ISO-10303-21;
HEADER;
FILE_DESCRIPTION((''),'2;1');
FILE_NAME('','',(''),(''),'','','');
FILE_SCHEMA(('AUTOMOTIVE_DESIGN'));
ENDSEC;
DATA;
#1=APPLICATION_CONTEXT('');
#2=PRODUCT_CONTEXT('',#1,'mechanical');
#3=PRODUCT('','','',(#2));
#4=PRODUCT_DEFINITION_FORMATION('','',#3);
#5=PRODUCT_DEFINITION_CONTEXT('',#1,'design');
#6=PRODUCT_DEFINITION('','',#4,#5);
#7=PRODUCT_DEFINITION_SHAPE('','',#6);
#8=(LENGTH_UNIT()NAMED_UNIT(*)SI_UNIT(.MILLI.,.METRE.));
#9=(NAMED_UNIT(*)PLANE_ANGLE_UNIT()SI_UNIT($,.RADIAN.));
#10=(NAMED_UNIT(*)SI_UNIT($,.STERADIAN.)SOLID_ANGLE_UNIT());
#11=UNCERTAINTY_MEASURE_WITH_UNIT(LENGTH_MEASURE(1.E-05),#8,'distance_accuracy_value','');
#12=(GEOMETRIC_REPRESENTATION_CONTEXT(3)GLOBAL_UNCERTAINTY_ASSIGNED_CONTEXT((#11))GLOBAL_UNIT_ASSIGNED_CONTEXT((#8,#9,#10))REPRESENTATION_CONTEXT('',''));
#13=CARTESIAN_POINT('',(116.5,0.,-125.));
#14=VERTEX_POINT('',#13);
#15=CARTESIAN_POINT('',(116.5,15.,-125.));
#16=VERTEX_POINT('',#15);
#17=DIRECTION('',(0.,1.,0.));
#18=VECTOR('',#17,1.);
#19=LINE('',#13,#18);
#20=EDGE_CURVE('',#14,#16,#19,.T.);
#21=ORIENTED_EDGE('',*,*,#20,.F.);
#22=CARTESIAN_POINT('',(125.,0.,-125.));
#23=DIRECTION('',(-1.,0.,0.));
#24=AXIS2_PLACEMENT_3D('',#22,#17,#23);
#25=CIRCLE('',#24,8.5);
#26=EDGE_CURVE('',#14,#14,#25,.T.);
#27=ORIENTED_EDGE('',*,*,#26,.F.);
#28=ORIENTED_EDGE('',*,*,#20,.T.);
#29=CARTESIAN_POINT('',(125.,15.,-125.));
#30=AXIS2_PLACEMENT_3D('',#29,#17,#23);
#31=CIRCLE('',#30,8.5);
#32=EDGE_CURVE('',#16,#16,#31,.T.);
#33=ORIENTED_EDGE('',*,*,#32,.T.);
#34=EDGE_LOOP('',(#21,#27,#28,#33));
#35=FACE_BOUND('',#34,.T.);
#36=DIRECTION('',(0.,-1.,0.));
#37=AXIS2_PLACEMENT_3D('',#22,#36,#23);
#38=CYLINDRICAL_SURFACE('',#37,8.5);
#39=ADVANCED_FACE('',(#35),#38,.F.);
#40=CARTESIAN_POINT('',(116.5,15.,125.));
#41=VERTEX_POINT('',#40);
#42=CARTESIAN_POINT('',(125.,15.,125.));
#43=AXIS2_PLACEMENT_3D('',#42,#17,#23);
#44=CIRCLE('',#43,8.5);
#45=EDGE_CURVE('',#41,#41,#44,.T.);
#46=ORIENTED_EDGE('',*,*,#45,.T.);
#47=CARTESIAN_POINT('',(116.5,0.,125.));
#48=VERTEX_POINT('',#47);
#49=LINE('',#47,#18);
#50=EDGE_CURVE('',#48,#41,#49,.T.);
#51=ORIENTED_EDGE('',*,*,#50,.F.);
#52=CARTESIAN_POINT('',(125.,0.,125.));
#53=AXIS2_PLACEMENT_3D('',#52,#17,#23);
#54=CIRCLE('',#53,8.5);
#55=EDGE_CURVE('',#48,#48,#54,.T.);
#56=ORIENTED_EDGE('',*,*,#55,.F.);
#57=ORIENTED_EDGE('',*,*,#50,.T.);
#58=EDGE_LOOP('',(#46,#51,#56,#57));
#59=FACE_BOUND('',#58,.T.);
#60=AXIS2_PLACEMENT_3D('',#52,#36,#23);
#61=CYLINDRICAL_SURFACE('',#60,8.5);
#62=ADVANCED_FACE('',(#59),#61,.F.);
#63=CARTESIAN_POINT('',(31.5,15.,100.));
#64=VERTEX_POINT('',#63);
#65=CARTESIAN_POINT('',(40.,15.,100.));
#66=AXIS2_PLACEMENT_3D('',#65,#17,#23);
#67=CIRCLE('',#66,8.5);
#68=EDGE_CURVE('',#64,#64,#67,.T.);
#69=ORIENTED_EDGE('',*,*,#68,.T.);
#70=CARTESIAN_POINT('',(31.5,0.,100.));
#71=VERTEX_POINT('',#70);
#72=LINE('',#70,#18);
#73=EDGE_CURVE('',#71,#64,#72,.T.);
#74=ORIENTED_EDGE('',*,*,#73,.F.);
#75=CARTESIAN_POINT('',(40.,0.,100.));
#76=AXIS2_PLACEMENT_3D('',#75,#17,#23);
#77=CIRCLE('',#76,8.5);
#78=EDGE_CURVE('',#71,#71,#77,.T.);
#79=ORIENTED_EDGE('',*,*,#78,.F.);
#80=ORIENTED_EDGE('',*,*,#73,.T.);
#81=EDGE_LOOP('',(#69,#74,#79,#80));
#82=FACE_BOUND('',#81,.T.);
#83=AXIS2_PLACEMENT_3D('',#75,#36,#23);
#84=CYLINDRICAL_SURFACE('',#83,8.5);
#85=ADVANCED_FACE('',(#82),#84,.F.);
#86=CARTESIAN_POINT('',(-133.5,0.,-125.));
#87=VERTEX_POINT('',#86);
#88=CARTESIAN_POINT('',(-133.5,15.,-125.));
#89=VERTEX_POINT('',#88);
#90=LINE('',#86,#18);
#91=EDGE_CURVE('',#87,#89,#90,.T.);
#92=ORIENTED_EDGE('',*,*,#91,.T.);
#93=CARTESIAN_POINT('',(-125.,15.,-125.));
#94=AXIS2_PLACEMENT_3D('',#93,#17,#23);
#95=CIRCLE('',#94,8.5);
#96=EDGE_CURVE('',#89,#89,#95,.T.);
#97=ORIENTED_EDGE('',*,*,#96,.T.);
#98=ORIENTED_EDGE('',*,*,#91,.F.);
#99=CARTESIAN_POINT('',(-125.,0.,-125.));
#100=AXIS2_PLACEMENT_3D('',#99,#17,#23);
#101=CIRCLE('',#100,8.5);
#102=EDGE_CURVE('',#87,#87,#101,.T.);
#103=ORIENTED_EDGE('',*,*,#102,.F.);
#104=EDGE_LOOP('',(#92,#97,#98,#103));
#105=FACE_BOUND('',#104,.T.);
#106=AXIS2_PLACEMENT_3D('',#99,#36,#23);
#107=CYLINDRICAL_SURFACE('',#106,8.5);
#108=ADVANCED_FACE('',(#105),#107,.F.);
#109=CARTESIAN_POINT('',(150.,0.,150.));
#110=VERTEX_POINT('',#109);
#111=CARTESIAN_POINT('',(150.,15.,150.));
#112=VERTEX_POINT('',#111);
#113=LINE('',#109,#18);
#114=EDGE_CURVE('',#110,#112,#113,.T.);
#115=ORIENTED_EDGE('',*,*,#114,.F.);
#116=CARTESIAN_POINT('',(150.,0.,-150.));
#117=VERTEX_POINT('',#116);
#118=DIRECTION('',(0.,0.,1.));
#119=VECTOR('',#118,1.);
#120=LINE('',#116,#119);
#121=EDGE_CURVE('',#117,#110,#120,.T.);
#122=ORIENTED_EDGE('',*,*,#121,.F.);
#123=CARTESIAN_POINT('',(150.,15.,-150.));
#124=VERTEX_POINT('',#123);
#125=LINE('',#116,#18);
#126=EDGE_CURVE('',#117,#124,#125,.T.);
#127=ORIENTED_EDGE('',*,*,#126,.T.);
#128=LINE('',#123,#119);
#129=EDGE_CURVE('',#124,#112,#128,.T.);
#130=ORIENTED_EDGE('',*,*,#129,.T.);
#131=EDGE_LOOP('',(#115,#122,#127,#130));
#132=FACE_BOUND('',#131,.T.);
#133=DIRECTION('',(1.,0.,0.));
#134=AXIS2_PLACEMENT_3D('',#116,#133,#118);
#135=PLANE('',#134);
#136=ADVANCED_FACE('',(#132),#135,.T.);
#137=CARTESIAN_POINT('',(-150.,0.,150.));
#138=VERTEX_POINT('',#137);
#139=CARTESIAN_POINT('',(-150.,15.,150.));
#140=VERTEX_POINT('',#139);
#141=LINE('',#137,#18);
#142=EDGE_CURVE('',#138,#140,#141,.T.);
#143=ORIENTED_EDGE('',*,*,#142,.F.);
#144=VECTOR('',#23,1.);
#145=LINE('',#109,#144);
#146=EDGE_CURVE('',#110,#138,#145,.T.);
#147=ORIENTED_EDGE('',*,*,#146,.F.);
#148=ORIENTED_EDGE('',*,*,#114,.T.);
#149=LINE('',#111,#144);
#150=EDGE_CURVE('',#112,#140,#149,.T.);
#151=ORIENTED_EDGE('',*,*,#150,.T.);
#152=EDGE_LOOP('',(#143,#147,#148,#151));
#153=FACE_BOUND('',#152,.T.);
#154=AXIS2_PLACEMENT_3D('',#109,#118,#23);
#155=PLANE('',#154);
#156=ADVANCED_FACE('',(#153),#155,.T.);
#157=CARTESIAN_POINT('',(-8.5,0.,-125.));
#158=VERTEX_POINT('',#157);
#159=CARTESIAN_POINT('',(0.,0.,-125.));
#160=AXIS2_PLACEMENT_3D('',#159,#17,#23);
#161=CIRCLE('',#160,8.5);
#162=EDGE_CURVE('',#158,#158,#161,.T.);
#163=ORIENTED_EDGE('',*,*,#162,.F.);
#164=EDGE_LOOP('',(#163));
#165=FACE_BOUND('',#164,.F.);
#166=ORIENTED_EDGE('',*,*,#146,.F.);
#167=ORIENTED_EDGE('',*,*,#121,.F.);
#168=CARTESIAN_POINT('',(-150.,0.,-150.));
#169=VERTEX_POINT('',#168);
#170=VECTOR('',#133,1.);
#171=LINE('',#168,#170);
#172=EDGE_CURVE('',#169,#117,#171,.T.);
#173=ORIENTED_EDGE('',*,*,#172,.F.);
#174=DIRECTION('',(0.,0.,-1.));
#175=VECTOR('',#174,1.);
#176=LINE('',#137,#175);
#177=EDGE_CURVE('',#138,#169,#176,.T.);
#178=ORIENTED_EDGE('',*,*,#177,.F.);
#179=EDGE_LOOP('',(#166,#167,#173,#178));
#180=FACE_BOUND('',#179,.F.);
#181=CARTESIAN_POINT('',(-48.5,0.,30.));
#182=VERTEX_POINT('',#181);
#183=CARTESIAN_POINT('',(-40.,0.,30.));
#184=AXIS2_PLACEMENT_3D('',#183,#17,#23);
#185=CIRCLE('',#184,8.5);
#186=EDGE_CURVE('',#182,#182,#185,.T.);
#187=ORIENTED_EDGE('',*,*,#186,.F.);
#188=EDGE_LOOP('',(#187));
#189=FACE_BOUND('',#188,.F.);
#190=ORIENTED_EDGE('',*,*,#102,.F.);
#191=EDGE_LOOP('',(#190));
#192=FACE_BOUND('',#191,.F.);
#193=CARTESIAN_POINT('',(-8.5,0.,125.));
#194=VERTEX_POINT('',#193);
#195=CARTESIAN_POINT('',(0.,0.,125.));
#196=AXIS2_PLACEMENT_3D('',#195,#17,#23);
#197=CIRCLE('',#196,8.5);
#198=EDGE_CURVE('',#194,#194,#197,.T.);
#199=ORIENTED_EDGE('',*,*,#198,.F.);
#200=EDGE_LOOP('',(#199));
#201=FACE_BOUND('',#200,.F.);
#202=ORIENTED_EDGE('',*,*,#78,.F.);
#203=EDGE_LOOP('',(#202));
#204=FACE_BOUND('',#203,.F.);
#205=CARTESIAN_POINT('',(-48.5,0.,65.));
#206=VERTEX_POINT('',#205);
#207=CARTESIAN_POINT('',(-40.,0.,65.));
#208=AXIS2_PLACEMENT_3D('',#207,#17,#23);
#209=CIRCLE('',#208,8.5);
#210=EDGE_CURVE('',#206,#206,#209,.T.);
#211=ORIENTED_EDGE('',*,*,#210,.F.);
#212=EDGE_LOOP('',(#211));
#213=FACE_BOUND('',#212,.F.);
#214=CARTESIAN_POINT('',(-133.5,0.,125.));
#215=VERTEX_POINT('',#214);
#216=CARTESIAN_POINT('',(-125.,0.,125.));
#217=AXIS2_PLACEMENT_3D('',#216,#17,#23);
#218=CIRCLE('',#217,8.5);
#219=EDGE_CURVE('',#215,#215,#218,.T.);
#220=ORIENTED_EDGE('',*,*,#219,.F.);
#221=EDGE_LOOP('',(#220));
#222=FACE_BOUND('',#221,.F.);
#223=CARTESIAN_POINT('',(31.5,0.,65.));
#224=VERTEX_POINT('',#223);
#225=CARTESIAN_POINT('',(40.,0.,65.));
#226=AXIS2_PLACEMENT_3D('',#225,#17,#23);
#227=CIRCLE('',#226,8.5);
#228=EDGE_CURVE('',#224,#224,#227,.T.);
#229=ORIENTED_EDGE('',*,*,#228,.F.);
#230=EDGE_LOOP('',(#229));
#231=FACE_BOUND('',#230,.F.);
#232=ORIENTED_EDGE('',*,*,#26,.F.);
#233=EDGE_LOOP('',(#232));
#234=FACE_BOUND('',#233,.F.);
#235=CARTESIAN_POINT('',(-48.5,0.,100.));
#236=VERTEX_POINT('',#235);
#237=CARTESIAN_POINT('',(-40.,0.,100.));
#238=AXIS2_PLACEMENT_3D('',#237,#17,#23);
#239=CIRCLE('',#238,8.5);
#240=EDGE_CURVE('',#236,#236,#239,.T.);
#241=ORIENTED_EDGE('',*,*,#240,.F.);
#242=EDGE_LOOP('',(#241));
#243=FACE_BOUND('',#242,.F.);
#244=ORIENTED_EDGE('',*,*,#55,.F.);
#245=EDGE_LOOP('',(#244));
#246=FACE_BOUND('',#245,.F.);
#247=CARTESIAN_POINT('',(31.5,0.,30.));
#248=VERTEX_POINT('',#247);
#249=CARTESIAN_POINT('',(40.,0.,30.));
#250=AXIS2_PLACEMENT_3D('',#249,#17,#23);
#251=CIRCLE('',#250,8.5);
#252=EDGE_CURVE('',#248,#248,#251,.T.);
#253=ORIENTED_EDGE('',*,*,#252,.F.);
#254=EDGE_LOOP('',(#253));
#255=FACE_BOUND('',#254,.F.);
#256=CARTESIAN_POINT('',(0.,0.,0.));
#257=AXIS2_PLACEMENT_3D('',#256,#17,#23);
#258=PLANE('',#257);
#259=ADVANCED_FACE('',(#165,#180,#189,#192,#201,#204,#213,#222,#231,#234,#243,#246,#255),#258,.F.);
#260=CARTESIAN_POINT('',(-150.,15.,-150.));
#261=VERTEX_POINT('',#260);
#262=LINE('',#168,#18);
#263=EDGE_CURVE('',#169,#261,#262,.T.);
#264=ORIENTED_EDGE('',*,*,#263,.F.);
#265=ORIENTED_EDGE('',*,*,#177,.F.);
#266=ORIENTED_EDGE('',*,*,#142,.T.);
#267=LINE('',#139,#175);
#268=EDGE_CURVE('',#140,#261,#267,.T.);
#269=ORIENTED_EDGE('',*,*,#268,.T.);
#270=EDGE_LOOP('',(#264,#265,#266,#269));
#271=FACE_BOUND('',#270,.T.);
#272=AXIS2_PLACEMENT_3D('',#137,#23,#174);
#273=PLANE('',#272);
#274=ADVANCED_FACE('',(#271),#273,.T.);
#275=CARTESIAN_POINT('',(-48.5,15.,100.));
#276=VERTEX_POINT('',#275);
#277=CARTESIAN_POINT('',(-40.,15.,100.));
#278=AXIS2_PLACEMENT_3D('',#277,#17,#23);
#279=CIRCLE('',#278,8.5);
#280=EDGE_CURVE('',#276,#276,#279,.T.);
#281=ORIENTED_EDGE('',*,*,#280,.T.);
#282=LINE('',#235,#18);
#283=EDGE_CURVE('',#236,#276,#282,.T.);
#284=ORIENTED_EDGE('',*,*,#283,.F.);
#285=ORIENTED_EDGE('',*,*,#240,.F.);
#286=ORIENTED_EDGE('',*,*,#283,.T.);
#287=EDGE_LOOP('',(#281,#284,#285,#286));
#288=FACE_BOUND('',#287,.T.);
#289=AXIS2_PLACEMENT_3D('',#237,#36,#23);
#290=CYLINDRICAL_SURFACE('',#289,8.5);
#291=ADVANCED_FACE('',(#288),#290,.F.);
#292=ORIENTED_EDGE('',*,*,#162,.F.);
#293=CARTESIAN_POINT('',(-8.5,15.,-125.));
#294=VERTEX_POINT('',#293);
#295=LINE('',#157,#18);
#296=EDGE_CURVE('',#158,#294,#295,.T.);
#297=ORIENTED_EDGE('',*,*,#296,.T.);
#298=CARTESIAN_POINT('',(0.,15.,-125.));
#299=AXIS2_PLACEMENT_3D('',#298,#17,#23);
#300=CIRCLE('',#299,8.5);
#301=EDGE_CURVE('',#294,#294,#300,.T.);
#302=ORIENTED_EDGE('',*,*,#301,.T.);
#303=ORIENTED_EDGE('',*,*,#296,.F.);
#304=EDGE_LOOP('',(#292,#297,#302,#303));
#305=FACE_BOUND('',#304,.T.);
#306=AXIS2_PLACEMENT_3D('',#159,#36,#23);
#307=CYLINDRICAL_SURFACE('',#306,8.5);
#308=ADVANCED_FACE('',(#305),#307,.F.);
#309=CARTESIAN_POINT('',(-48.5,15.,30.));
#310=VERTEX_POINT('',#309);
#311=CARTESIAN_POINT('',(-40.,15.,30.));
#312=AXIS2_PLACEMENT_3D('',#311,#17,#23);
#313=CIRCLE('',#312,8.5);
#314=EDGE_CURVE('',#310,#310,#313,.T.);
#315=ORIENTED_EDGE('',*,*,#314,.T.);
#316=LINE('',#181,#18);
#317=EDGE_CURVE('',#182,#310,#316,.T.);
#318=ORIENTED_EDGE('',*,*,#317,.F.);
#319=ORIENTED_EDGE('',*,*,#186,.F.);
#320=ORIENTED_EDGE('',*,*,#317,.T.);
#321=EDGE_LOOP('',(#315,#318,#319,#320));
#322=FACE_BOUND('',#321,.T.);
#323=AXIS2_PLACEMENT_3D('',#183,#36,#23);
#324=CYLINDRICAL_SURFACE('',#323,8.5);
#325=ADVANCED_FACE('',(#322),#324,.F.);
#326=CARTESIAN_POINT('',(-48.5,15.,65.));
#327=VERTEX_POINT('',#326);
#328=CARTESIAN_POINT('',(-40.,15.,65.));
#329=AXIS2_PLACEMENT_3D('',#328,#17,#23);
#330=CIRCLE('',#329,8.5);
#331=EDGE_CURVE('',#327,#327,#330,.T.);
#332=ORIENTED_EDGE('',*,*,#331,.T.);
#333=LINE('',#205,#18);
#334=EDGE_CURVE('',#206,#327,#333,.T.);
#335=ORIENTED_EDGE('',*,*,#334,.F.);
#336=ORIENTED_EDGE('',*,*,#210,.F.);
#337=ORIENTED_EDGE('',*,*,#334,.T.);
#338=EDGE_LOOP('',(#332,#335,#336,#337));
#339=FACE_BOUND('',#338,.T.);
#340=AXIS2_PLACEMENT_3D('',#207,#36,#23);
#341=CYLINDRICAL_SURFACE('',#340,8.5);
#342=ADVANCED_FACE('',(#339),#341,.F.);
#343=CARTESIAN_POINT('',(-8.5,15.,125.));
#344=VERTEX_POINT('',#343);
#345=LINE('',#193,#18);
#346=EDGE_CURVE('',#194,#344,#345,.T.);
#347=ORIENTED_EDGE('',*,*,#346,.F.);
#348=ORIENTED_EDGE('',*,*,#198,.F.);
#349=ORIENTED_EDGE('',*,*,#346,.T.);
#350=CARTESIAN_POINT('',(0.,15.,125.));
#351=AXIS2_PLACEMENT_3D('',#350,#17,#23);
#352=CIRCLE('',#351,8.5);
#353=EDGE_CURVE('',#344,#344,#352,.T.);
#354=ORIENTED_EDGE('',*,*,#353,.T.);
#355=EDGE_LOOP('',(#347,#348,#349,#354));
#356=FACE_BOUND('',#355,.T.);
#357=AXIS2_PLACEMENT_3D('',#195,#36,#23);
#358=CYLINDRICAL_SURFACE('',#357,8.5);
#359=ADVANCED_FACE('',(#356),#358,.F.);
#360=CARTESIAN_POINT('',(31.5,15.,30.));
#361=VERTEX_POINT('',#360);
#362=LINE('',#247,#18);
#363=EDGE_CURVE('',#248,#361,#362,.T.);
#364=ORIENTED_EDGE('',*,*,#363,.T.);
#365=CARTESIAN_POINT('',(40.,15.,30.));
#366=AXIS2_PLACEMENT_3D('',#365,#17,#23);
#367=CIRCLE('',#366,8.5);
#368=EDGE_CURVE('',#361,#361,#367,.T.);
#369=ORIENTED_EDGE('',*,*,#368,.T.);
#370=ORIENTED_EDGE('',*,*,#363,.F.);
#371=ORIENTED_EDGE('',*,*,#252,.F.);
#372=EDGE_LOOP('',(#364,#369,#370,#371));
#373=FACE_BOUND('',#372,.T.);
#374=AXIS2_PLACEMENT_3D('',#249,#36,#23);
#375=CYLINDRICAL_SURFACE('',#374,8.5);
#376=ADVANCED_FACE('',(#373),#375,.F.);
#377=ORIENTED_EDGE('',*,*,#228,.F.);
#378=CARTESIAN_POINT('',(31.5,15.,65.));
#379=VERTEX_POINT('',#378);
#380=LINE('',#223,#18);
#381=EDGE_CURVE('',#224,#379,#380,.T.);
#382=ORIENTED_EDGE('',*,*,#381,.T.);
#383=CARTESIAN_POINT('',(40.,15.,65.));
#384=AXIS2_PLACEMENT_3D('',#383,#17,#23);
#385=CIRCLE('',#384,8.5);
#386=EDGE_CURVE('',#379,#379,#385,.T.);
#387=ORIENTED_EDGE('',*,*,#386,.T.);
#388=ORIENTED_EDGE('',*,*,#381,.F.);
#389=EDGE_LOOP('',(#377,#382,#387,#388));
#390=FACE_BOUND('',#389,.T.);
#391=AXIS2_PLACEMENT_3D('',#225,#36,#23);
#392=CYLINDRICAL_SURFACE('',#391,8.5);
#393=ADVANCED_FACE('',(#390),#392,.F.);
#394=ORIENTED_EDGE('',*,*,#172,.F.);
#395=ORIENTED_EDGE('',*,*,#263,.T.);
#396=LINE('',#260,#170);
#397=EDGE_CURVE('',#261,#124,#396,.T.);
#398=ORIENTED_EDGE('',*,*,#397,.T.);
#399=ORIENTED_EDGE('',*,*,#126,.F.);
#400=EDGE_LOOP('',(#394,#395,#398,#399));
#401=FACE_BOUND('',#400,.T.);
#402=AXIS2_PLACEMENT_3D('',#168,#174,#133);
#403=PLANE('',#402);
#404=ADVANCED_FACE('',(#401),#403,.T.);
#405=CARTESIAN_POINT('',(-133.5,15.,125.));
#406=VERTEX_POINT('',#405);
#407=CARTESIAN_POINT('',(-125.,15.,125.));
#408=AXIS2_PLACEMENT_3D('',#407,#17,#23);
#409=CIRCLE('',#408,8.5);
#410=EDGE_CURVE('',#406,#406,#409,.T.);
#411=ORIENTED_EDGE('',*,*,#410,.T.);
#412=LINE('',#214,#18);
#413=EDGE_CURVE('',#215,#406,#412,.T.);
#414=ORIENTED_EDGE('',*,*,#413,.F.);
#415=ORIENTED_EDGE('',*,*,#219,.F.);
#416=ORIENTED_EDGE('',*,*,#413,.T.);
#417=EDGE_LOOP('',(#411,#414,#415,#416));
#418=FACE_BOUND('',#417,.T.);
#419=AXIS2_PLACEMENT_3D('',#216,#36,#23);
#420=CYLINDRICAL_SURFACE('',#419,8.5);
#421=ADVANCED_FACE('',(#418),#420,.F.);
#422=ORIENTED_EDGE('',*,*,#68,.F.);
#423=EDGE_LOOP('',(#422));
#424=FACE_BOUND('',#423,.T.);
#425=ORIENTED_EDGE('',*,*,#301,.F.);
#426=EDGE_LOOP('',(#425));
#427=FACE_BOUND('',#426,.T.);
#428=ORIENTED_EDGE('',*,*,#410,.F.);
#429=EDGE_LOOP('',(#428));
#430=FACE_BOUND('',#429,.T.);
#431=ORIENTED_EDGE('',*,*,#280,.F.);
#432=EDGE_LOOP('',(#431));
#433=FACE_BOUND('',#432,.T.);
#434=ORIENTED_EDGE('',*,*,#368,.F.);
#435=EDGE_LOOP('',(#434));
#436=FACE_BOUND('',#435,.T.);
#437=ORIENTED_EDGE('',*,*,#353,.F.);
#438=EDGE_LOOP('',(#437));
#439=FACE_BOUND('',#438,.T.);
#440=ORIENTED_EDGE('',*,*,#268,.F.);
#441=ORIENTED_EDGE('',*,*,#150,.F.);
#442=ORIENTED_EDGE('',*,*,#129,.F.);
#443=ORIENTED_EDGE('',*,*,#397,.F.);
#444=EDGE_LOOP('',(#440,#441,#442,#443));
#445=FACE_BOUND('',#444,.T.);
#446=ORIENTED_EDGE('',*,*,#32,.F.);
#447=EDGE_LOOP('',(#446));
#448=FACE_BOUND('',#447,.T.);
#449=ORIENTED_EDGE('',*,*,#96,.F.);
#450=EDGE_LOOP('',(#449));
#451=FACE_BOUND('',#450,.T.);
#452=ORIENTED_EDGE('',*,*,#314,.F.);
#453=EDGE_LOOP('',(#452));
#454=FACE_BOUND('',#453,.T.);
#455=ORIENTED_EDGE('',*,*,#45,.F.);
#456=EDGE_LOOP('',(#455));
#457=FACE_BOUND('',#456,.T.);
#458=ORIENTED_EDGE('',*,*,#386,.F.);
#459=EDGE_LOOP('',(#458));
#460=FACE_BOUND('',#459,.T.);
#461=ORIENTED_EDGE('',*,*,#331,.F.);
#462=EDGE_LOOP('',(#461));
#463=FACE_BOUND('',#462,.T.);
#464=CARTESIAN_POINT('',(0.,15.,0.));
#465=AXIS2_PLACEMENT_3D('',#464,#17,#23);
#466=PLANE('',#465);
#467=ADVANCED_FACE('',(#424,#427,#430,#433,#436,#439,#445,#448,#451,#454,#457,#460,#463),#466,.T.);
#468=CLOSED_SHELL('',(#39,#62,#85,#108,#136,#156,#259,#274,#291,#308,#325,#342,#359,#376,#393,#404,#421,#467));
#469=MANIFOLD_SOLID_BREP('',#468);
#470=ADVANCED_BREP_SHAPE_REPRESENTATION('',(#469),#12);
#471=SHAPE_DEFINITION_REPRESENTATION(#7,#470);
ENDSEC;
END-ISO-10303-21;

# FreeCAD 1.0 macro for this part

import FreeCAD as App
import Part
import Sketcher

doc = App.newDocument("Part")
body = doc.addObject("PartDesign::Body", "Body")

# Sketch on XZ plane
sketch1 = doc.addObject("Sketcher::SketchObject", "Sketch")
body.addObject(sketch1)
sketch1.AttachmentSupport = (doc.XZ_Plane, [""])
sketch1.MapMode = "FlatFace"
sketch1.addGeometry(Part.LineSegment(App.Vector(-150, 150, 0), App.Vector(150, 150, 0)), False)
sketch1.addGeometry(Part.LineSegment(App.Vector(150, 150, 0), App.Vector(150, -150, 0)), False)
sketch1.addGeometry(Part.LineSegment(App.Vector(150, -150, 0), App.Vector(-150, -150, 0)), False)
sketch1.addGeometry(Part.LineSegment(App.Vector(-150, -150, 0), App.Vector(-150, 150, 0)), False)
sketch1.addGeometry(Part.Circle(App.Vector(125, -125, 0), App.Vector(0, 0, 1), 8), False)
sketch1.addGeometry(Part.Circle(App.Vector(0, -125, 0), App.Vector(0, 0, 1), 8), False)
sketch1.addGeometry(Part.Circle(App.Vector(-125, -125, 0), App.Vector(0, 0, 1), 8), False)
sketch1.addGeometry(Part.Circle(App.Vector(40, 30, 0), App.Vector(0, 0, 1), 8), False)
sketch1.addGeometry(Part.Circle(App.Vector(40, 65, 0), App.Vector(0, 0, 1), 8), False)
sketch1.addGeometry(Part.Circle(App.Vector(125, 125, 0), App.Vector(0, 0, 1), 8), False)
sketch1.addGeometry(Part.Circle(App.Vector(40, 100, 0), App.Vector(0, 0, 1), 8), False)
sketch1.addGeometry(Part.Circle(App.Vector(-40, 30, 0), App.Vector(0, 0, 1), 8), False)
sketch1.addGeometry(Part.Circle(App.Vector(-40, 65, 0), App.Vector(0, 0, 1), 8), False)
sketch1.addGeometry(Part.Circle(App.Vector(-40, 100, 0), App.Vector(0, 0, 1), 8), False)
sketch1.addGeometry(Part.Circle(App.Vector(0, 125, 0), App.Vector(0, 0, 1), 8), False)
sketch1.addGeometry(Part.Circle(App.Vector(-125, 125, 0), App.Vector(0, 0, 1), 8), False)
sketch1.addConstraint(Sketcher.Constraint("Coincident", 0, 2, 1, 1))
sketch1.addConstraint(Sketcher.Constraint("Coincident", 1, 2, 2, 1))
sketch1.addConstraint(Sketcher.Constraint("Coincident", 2, 2, 3, 1))
sketch1.addConstraint(Sketcher.Constraint("Coincident", 3, 2, 0, 1))
sketch1.addConstraint(Sketcher.Constraint("Horizontal", 0))
sketch1.addConstraint(Sketcher.Constraint("Vertical", 1))
sketch1.addConstraint(Sketcher.Constraint("Horizontal", 2))
sketch1.addConstraint(Sketcher.Constraint("Vertical", 3))
sketch1.addConstraint(Sketcher.Constraint("Equal", 4, 5))
sketch1.addConstraint(Sketcher.Constraint("Equal", 5, 6))
sketch1.addConstraint(Sketcher.Constraint("Equal", 6, 7))
sketch1.addConstraint(Sketcher.Constraint("Equal", 7, 8))
sketch1.addConstraint(Sketcher.Constraint("Equal", 8, 9))
sketch1.addConstraint(Sketcher.Constraint("Equal", 9, 10))
sketch1.addConstraint(Sketcher.Constraint("Equal", 10, 11))
sketch1.addConstraint(Sketcher.Constraint("Equal", 11, 12))
sketch1.addConstraint(Sketcher.Constraint("Equal", 12, 13))
sketch1.addConstraint(Sketcher.Constraint("Equal", 13, 14))
sketch1.addConstraint(Sketcher.Constraint("Equal", 14, 15))
sketch1.addConstraint(Sketcher.Constraint("Symmetric", 6, 3, 9, 3, -1, 1))
sketch1.addConstraint(Sketcher.Constraint("Symmetric", 5, 3, 14, 3, -1, 1))
sketch1.addConstraint(Sketcher.Constraint("Symmetric", 4, 3, 15, 3, -1, 1))
sketch1.addConstraint(Sketcher.Constraint("Symmetric", 0, 2, 2, 2, -1, 1))
sketch1.addConstraint(Sketcher.Constraint("Symmetric", 4, 3, 6, 3, -2))
sketch1.addConstraint(Sketcher.Constraint("Symmetric", 7, 3, 11, 3, -2))
sketch1.addConstraint(Sketcher.Constraint("Symmetric", 8, 3, 12, 3, -2))
sketch1.addConstraint(Sketcher.Constraint("Symmetric", 10, 3, 13, 3, -2))
sketch1.addConstraint(Sketcher.Constraint("PointOnObject", 5, 3, -2))
sketch1.addConstraint(Sketcher.Constraint("Horizontal", 4, 3, 5, 3))
sketch1.addConstraint(Sketcher.Constraint("Vertical", 7, 3, 8, 3))
sketch1.addConstraint(Sketcher.Constraint("Vertical", 8, 3, 10, 3))
sketch1.addConstraint(Sketcher.Constraint("Equal", 2, 1))
sketch1.addConstraint(Sketcher.Constraint("Diameter", 4, 17.0))
sketch1.addConstraint(Sketcher.Constraint("DistanceX", 0, 1, 0, 2, 300.0))
sketch1.addConstraint(Sketcher.Constraint("DistanceX", -1, 1, 7, 3, 40.0))
sketch1.addConstraint(Sketcher.Constraint("DistanceX", 7, 3, 4, 3, 85.0))
sketch1.addConstraint(Sketcher.Constraint("DistanceY", 10, 3, 9, 3, 25.0))
sketch1.addConstraint(Sketcher.Constraint("DistanceY", 9, 3, 0, 2, 25.0))
sketch1.addConstraint(Sketcher.Constraint("DistanceY", 8, 3, 0, 2, 85.0))
sketch1.addConstraint(Sketcher.Constraint("DistanceY", 7, 3, 0, 2, 120.0))
pad1 = doc.addObject("PartDesign::Pad", "Pad")
body.addObject(pad1)
pad1.Profile = sketch1
pad1.Length = 15
pad1.Reversed = True

doc.recompute()
